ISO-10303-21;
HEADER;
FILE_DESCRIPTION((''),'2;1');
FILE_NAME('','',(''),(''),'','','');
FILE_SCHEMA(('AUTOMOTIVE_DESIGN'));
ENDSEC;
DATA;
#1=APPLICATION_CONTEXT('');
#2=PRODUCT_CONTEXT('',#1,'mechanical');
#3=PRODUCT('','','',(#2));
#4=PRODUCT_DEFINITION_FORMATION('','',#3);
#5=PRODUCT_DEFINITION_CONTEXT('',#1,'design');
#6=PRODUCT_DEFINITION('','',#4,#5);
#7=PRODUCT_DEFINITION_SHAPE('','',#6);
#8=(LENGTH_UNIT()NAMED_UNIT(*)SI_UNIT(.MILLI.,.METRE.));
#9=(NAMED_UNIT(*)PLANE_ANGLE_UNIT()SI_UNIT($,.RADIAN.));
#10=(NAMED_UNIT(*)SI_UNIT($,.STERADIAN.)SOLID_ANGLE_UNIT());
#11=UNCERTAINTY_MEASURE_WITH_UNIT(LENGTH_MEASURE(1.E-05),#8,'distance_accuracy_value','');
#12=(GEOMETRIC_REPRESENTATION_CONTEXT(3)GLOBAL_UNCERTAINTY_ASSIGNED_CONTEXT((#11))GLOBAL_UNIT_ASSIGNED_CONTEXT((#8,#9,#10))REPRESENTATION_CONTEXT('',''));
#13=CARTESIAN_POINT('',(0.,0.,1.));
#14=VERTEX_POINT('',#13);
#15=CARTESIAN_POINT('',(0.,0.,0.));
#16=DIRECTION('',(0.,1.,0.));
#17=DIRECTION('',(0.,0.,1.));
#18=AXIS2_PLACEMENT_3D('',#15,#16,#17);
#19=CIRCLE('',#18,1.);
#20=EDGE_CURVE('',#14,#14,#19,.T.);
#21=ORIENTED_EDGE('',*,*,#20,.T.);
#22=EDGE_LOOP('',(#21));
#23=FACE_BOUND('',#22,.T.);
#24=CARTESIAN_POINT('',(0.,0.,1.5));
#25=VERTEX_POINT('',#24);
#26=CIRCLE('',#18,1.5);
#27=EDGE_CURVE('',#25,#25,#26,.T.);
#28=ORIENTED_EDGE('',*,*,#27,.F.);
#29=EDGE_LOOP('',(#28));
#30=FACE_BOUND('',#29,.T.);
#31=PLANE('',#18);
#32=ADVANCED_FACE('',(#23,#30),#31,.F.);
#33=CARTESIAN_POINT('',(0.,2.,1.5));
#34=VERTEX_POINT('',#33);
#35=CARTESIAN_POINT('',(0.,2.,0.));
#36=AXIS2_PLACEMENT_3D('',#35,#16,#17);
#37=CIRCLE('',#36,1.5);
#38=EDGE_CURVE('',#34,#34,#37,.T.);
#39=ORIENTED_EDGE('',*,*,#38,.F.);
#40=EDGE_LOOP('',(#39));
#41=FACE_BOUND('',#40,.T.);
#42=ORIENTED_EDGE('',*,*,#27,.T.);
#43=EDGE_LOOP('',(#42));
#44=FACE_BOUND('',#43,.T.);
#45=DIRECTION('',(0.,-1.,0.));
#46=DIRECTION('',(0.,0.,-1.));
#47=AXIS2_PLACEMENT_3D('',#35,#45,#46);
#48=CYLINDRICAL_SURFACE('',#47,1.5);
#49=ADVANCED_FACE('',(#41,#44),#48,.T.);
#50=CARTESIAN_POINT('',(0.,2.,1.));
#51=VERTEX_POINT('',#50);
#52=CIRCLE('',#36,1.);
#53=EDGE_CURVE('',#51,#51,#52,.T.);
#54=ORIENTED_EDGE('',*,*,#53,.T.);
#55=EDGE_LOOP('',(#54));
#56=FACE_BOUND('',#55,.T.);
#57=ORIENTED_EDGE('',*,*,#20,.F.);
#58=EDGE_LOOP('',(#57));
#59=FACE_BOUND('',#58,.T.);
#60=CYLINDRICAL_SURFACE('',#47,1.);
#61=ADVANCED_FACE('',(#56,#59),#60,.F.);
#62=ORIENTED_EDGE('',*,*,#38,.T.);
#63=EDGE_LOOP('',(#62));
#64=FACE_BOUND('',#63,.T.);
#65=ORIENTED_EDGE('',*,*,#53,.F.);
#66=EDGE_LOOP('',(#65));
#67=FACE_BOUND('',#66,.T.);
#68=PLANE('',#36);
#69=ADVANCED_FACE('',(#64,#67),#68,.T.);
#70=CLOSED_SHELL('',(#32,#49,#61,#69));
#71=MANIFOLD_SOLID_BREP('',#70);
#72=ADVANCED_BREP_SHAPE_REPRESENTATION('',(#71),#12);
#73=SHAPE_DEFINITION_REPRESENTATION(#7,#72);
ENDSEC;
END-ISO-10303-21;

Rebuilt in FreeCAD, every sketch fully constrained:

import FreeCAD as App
import Part
import Sketcher
from FreeCAD import Vector

doc = App.newDocument("Part")
params = doc.addObject("Spreadsheet::Sheet", "Params")
for row, (alias, value) in enumerate([
    ("sketch1_diameter", "3 mm"),
    ("sketch1_diameter2", "2 mm"),
    ("pad1_length", "2 mm"),
], start=1):
    params.set(f"A{row}", alias)
    params.set(f"B{row}", "=" + value)
    params.setAlias(f"B{row}", alias)

body = doc.addObject("PartDesign::Body", "Body")

# Sketch on XZ plane
sketch1 = body.newObject("Sketcher::SketchObject", "Sketch")
sketch1.AttachmentSupport = (doc.getObject("XZ_Plane"), [""])
sketch1.MapMode = "FlatFace"
sketch1.addGeometry(Part.Circle(Vector(0, 0, 0), Vector(0, 0, 1), 1.5), False)
sketch1.addGeometry(Part.Circle(Vector(0, 0, 0), Vector(0, 0, 1), 1), False)
sketch1.addConstraint(Sketcher.Constraint("Coincident", 0, 3, -1, 1))
sketch1.addConstraint(Sketcher.Constraint("Coincident", 1, 3, -1, 1))
sketch1.addConstraint(Sketcher.Constraint("Diameter", 0, 3.0))
sketch1.addConstraint(Sketcher.Constraint("Diameter", 1, 2.0))
sketch1.setExpression("Constraints[2]", "Params.sketch1_diameter")
sketch1.setExpression("Constraints[3]", "Params.sketch1_diameter2")
pad1 = body.newObject("PartDesign::Pad", "Pad")
pad1.Profile = sketch1
pad1.setExpression("Length", "Params.pad1_length")
pad1.Reversed = True

doc.recompute()
